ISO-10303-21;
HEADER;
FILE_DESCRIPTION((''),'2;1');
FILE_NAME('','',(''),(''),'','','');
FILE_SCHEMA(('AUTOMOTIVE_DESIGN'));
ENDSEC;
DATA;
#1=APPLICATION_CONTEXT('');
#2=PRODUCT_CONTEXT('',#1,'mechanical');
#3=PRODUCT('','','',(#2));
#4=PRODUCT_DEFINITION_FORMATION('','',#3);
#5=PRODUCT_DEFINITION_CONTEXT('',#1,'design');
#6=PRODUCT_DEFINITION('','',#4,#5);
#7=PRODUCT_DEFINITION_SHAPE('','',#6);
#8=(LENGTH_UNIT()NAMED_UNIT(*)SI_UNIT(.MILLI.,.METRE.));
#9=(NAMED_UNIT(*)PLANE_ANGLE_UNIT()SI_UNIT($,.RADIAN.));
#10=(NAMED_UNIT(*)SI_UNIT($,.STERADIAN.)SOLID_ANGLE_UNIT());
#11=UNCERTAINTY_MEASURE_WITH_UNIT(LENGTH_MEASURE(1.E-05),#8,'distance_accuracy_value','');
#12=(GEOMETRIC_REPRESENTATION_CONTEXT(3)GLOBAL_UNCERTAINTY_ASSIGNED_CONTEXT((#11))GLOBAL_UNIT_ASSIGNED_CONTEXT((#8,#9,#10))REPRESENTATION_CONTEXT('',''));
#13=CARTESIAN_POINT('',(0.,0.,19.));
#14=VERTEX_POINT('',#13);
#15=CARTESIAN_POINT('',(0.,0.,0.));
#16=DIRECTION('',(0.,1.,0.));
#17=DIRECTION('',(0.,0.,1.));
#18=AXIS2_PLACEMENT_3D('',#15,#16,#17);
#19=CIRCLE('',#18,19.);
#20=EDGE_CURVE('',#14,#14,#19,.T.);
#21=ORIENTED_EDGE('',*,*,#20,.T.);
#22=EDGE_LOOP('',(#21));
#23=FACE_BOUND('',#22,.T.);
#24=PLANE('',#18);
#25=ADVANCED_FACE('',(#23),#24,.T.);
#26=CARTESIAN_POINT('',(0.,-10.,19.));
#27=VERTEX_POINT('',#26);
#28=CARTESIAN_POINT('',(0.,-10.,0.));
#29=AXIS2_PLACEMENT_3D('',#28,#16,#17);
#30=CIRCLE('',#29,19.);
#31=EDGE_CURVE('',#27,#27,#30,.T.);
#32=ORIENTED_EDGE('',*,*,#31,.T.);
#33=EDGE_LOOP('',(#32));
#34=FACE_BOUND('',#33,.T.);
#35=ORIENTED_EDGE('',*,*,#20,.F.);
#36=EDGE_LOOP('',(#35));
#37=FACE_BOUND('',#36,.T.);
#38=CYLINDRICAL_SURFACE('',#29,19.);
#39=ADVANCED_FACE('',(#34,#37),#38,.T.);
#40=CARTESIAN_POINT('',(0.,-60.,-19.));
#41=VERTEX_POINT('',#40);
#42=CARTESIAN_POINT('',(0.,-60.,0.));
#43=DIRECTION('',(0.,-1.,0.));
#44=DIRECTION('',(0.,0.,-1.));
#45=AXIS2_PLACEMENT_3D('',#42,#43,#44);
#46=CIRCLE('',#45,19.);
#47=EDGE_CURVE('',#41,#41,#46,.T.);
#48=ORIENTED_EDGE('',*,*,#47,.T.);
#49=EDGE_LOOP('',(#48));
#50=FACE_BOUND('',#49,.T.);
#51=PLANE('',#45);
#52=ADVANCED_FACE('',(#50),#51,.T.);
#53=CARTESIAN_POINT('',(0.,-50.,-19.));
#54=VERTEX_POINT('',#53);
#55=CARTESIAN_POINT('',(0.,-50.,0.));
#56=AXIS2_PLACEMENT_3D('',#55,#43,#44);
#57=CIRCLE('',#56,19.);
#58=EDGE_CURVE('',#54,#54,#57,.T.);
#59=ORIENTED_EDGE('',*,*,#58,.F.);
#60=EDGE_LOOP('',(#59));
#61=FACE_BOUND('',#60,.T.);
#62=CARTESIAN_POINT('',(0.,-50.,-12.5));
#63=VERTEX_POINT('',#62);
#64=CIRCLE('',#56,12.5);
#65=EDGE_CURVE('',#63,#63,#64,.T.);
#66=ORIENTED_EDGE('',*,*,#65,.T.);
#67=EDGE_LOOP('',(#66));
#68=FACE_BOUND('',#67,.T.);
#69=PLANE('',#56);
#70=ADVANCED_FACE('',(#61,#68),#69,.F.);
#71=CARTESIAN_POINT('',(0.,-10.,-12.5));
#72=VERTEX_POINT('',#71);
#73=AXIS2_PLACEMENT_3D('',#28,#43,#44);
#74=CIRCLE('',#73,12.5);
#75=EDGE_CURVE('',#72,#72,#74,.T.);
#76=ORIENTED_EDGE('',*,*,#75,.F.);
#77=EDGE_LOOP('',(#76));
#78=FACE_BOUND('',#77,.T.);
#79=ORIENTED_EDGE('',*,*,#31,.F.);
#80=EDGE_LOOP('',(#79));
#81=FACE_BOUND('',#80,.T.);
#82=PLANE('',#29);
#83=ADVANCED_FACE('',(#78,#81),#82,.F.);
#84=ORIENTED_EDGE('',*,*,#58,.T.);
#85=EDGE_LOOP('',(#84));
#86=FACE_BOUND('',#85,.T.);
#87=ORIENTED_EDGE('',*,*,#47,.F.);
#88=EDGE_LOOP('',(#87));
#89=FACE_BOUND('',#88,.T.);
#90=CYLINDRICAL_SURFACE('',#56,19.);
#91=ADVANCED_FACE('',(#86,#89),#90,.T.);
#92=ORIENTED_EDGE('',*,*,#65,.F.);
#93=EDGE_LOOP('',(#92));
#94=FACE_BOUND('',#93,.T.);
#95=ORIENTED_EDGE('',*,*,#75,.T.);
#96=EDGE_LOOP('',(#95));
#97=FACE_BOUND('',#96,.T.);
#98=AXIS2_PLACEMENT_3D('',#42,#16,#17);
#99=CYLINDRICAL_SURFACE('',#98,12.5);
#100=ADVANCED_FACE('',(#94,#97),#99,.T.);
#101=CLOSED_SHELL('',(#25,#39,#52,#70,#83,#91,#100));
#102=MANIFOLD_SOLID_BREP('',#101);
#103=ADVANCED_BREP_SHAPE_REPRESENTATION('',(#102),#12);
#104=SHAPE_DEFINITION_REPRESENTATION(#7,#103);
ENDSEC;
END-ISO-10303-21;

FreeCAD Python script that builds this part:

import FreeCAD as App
import Part
import Sketcher
Q = App.Units.Quantity

doc = App.newDocument("Part")
body = doc.addObject("PartDesign::Body", "Body")

# Sketch on XZ plane
sketch1 = body.newObject("Sketcher::SketchObject", "Sketch")
sketch1.AttachmentSupport = (doc.getObject("XZ_Plane"), [""])
sketch1.MapMode = "FlatFace"
sketch1.addGeometry(Part.Circle(App.Vector(0, 0, 0), App.Vector(0, 0, 1), 19), False)
sketch1.addConstraint(Sketcher.Constraint("Coincident", 0, 3, -1, 1))
sketch1.addConstraint(Sketcher.Constraint("Diameter", 0, Q("38 mm")))
pad1 = body.newObject("PartDesign::Pad", "Pad")
pad1.Profile = sketch1
pad1.Length = 10

# Sketch on XZ plane
sketch2 = body.newObject("Sketcher::SketchObject", "Sketch001")
sketch2.AttachmentSupport = (doc.getObject("XZ_Plane"), [""])
sketch2.MapMode = "FlatFace"
sketch2.AttachmentOffset = App.Placement(App.Vector(0, 0, 10), App.Rotation())
sketch2.addGeometry(Part.Circle(App.Vector(0, 0, 0), App.Vector(0, 0, 1), 12), False)
sketch2.addConstraint(Sketcher.Constraint("Coincident", 0, 3, -1, 1))
sketch2.addConstraint(Sketcher.Constraint("Diameter", 0, Q("25 mm")))
pad2 = body.newObject("PartDesign::Pad", "Pad001")
pad2.Profile = sketch2
pad2.Length = 50

# Sketch on XZ plane
sketch3 = body.newObject("Sketcher::SketchObject", "Sketch002")
sketch3.AttachmentSupport = (doc.getObject("XZ_Plane"), [""])
sketch3.MapMode = "FlatFace"
sketch3.AttachmentOffset = App.Placement(App.Vector(0, 0, 60), App.Rotation())
sketch3.addGeometry(Part.Circle(App.Vector(0, 0, 0), App.Vector(0, 0, 1), 19), False)
sketch3.addConstraint(Sketcher.Constraint("Coincident", 0, 3, -1, 1))
sketch3.addConstraint(Sketcher.Constraint("Diameter", 0, Q("38 mm")))
pad3 = body.newObject("PartDesign::Pad", "Pad002")
pad3.Profile = sketch3
pad3.Length = 10
pad3.Reversed = True

doc.recompute()
